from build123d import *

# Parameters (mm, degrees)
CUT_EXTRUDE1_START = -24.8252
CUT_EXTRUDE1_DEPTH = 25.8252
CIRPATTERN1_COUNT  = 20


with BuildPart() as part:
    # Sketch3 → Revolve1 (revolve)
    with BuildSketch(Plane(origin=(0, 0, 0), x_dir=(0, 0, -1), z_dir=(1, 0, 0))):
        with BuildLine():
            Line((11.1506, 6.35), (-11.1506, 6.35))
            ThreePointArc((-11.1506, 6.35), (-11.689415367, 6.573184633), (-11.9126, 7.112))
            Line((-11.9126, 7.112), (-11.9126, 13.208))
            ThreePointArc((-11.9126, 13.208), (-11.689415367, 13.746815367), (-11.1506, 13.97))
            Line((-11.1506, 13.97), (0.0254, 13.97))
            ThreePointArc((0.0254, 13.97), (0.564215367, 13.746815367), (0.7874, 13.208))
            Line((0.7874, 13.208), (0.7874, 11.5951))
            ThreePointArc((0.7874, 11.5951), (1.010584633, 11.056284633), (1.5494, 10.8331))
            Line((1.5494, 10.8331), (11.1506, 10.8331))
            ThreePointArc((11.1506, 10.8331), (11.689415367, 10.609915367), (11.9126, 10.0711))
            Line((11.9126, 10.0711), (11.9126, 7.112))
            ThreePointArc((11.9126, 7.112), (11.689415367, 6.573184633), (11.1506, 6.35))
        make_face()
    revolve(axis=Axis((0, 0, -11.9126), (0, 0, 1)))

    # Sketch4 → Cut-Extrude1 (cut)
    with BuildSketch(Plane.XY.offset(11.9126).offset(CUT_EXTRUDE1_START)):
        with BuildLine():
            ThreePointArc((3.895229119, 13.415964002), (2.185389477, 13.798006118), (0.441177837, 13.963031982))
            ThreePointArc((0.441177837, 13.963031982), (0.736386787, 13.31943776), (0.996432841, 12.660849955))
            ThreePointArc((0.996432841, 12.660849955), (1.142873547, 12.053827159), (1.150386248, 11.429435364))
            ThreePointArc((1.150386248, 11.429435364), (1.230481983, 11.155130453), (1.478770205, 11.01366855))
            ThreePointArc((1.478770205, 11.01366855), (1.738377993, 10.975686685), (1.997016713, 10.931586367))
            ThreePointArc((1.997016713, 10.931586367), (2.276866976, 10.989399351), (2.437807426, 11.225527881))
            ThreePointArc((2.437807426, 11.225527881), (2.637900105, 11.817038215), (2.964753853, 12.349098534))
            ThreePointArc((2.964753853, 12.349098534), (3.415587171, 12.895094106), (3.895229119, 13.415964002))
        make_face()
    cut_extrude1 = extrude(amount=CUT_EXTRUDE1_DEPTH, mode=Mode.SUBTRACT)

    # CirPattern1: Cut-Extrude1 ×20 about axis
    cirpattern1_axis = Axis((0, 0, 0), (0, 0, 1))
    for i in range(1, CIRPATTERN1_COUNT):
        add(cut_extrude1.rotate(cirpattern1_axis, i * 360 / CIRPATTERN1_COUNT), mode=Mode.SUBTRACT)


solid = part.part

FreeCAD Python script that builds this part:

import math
import FreeCAD as App
import Part
import Sketcher
Q = App.Units.Quantity

doc = App.newDocument("Part")
body = doc.addObject("PartDesign::Body", "Body")

# Sketch on YZ plane
sketch1 = body.newObject("Sketcher::SketchObject", "Sketch")
sketch1.AttachmentSupport = (doc.getObject("YZ_Plane"), [""])
sketch1.MapMode = "FlatFace"
sketch1.addGeometry(Part.LineSegment(App.Vector(6.3, 11.2, 0), App.Vector(6.3, -11.2, 0)), False)
sketch1.addGeometry(Part.ArcOfCircle(Part.Circle(App.Vector(7.1, -11.2, 0), App.Vector(0, 0, 1), 0.8), math.radians(-180), math.radians(-90)), False)
sketch1.addGeometry(Part.LineSegment(App.Vector(7.1, -11.9, 0), App.Vector(10.1, -11.9, 0)), False)
sketch1.addGeometry(Part.ArcOfCircle(Part.Circle(App.Vector(10.1, -11.2, 0), App.Vector(0, 0, 1), 0.8), math.radians(-90), math.radians(0)), False)
sketch1.addGeometry(Part.LineSegment(App.Vector(10.8, -11.2, 0), App.Vector(10.8, -1.5, 0)), False)
sketch1.addGeometry(Part.ArcOfCircle(Part.Circle(App.Vector(11.6, -1.5, 0), App.Vector(0, 0, 1), 0.8), math.radians(90), math.radians(180)), False)
sketch1.addGeometry(Part.LineSegment(App.Vector(11.6, -0.8, 0), App.Vector(13.2, -0.8, 0)), False)
sketch1.addGeometry(Part.ArcOfCircle(Part.Circle(App.Vector(13.2, 0, 0), App.Vector(0, 0, 1), 0.8), math.radians(-90), math.radians(0)), False)
sketch1.addGeometry(Part.LineSegment(App.Vector(14, 0, 0), App.Vector(14, 11.2, 0)), False)
sketch1.addGeometry(Part.ArcOfCircle(Part.Circle(App.Vector(13.2, 11.2, 0), App.Vector(0, 0, 1), 0.8), math.radians(0), math.radians(90)), False)
sketch1.addGeometry(Part.LineSegment(App.Vector(13.2, 11.9, 0), App.Vector(7.1, 11.9, 0)), False)
sketch1.addGeometry(Part.ArcOfCircle(Part.Circle(App.Vector(7.1, 11.2, 0), App.Vector(0, 0, 1), 0.8), math.radians(90), math.radians(180)), False)
sketch1.addConstraint(Sketcher.Constraint("Tangent", 0, 2, 1, 1))
sketch1.addConstraint(Sketcher.Constraint("Tangent", 1, 2, 2, 1))
sketch1.addConstraint(Sketcher.Constraint("Tangent", 2, 2, 3, 1))
sketch1.addConstraint(Sketcher.Constraint("Tangent", 3, 2, 4, 1))
sketch1.addConstraint(Sketcher.Constraint("Tangent", 4, 2, 5, 2))
sketch1.addConstraint(Sketcher.Constraint("Tangent", 5, 1, 6, 1))
sketch1.addConstraint(Sketcher.Constraint("Tangent", 6, 2, 7, 1))
sketch1.addConstraint(Sketcher.Constraint("Tangent", 7, 2, 8, 1))
sketch1.addConstraint(Sketcher.Constraint("Tangent", 8, 2, 9, 1))
sketch1.addConstraint(Sketcher.Constraint("Tangent", 9, 2, 10, 1))
sketch1.addConstraint(Sketcher.Constraint("Tangent", 10, 2, 11, 1))
sketch1.addConstraint(Sketcher.Constraint("Tangent", 11, 2, 0, 1))
sketch1.addConstraint(Sketcher.Constraint("Vertical", 0))
sketch1.addConstraint(Sketcher.Constraint("Horizontal", 2))
sketch1.addConstraint(Sketcher.Constraint("Vertical", 4))
sketch1.addConstraint(Sketcher.Constraint("Horizontal", 6))
sketch1.addConstraint(Sketcher.Constraint("Vertical", 8))
sketch1.addConstraint(Sketcher.Constraint("Horizontal", 10))
sketch1.addConstraint(Sketcher.Constraint("Equal", 1, 3))
sketch1.addConstraint(Sketcher.Constraint("Equal", 3, 5))
sketch1.addConstraint(Sketcher.Constraint("Equal", 5, 7))
sketch1.addConstraint(Sketcher.Constraint("Equal", 7, 9))
sketch1.addConstraint(Sketcher.Constraint("Equal", 9, 11))
sketch1.addConstraint(Sketcher.Constraint("Radius", 1, Q("0.03 in")))
sketch1.addConstraint(Sketcher.Constraint("DistanceX", 10, 2, 10, 1, Q("0.24 in")))
sketch1.addConstraint(Sketcher.Constraint("DistanceY", 8, 1, 8, 2, Q("0.44 in")))
sketch1.addConstraint(Sketcher.Constraint("DistanceY", 0, 2, 0, 1, Q("0.878 in")))
sketch1.addConstraint(Sketcher.Constraint("DistanceX", -1, 1, 1, 3, Q("0.28 in")))
sketch1.addConstraint(Sketcher.Constraint("DistanceX", 2, 1, 2, 2, Q("0.1165 in")))
sketch1.addConstraint(Sketcher.Constraint("DistanceY", 1, 3, -1, 1, Q("0.439 in")))
revolution = body.newObject("PartDesign::Revolution", "Revolution")
revolution.Profile = sketch1
revolution.ReferenceAxis = (sketch1, ["V_Axis"])
revolution.Angle = 360

# Sketch on XY plane
sketch2 = body.newObject("Sketcher::SketchObject", "Sketch001")
sketch2.AttachmentSupport = (doc.getObject("XY_Plane"), [""])
sketch2.MapMode = "FlatFace"
sketch2.AttachmentOffset = App.Placement(App.Vector(0, 0, -12.9126), App.Rotation())
sketch2.addGeometry(Part.ArcOfCircle(Part.Circle(App.Vector(0, 0, 0), App.Vector(0, 0, 1), 13.97), math.radians(73.809723), math.radians(88.190277)), False)
sketch2.addGeometry(Part.ArcOfCircle(Part.Circle(App.Vector(-11.32828, 8.175021, 0), App.Vector(0, 0, 1), 13.115685), math.radians(20), math.radians(26.187141)), False)
sketch2.addGeometry(Part.ArcOfCircle(Part.Circle(App.Vector(-1.620577, 11.708336, 0), App.Vector(0, 0, 1), 2.784964), math.radians(-5.747532), math.radians(20)), False)
sketch2.addGeometry(Part.ArcOfCircle(Part.Circle(App.Vector(1.529471, 11.39128, 0), App.Vector(0, 0, 1), 0.381), math.radians(174.252468), math.radians(262.352813)), False)
sketch2.addGeometry(Part.ArcOfCircle(Part.Circle(App.Vector(0, 0.000001, 0), App.Vector(0, 0, 1), 11.112499), math.radians(79.647187), math.radians(82.352813)), False)
sketch2.addGeometry(Part.ArcOfCircle(Part.Circle(App.Vector(2.065486, 11.306384, 0), App.Vector(0, 0, 1), 0.381), math.radians(-100.352813), math.radians(-12.252468)), False)
sketch2.addGeometry(Part.ArcOfCircle(Part.Circle(App.Vector(5.159335, 10.634503, 0), App.Vector(0, 0, 1), 2.784964), math.radians(142), math.radians(167.747532)), False)
sketch2.addGeometry(Part.ArcOfCircle(Part.Circle(App.Vector(13.300055, 4.274276, 0), App.Vector(0, 0, 1), 13.115685), math.radians(135.812859), math.radians(142)), False)
sketch2.addConstraint(Sketcher.Constraint("Coincident", 0, 2, 1, 2))
sketch2.addConstraint(Sketcher.Constraint("Coincident", 1, 1, 2, 2))
sketch2.addConstraint(Sketcher.Constraint("Coincident", 2, 1, 3, 1))
sketch2.addConstraint(Sketcher.Constraint("Coincident", 3, 2, 4, 2))
sketch2.addConstraint(Sketcher.Constraint("Coincident", 4, 1, 5, 1))
sketch2.addConstraint(Sketcher.Constraint("Coincident", 5, 2, 6, 2))
sketch2.addConstraint(Sketcher.Constraint("Coincident", 6, 1, 7, 2))
sketch2.addConstraint(Sketcher.Constraint("Coincident", 7, 1, 0, 1))
sketch2.addConstraint(Sketcher.Constraint("Coincident", 0, 3, -1, 1))
sketch2.addConstraint(Sketcher.Constraint("Coincident", 4, 3, -1, 1))
sketch2.addConstraint(Sketcher.Constraint("Radius", 0, Q("0.55 in")))
sketch2.addConstraint(Sketcher.Constraint("Radius", 3, Q("0.015 in")))
sketch2.addConstraint(Sketcher.Constraint("Radius", 4, Q("0.4375 in")))
sketch2.addConstraint(Sketcher.Constraint("Radius", 5, Q("0.015 in")))
sketch2.addConstraint(Sketcher.Constraint("Radius", 1, Q("13.115685 mm")))
sketch2.addConstraint(Sketcher.Constraint("Radius", 2, Q("2.784964 mm")))
sketch2.addConstraint(Sketcher.Constraint("Radius", 6, Q("2.784964 mm")))
sketch2.addConstraint(Sketcher.Constraint("Radius", 7, Q("13.115685 mm")))
sketch2.addConstraint(Sketcher.Constraint("DistanceX", 4, 1, 6, 1, Q("0.0380999 in")))
sketch2.addConstraint(Sketcher.Constraint("DistanceY", -1, 1, 6, 1, Q("12.349099 mm")))
sketch2.addConstraint(Sketcher.Constraint("DistanceX", 2, 1, 5, 3, Q("0.9151 mm")))
sketch2.addConstraint(Sketcher.Constraint("DistanceY", 2, 1, 2, 3, Q("0.278901 mm")))
sketch2.addConstraint(Sketcher.Constraint("DistanceX", 3, 2, 3, 3, Q("0.050701 mm")))
sketch2.addConstraint(Sketcher.Constraint("DistanceX", 1, 3, -1, 1, Q("11.32828 mm")))
sketch2.addConstraint(Sketcher.Constraint("DistanceY", -1, 1, 1, 3, Q("8.175021 mm")))
sketch2.addConstraint(Sketcher.Constraint("DistanceX", -1, 1, 3, 3, Q("1.529471 mm")))
sketch2.addConstraint(Sketcher.Constraint("DistanceY", -1, 1, 1, 1, Q("12.66085 mm")))
sketch2.addConstraint(Sketcher.Constraint("DistanceX", -1, 1, 7, 1, Q("3.895229 mm")))
sketch2.addConstraint(Sketcher.Constraint("DistanceX", 5, 3, 6, 3, Q("3.09385 mm")))
sketch2.addConstraint(Sketcher.Constraint("DistanceX", 5, 3, 5, 2, Q("0.372322 mm")))
pocket1 = body.newObject("PartDesign::Pocket", "Pocket")
pocket1.Profile = sketch2
pocket1.Length = 25.8252
pocket1.Reversed = True
doc.recompute()

polarpattern = body.newObject("PartDesign::PolarPattern", "PolarPattern")
polarpattern.Originals = [pocket1]
polarpattern.Axis = (doc.getObject("Z_Axis"), [""])
polarpattern.Angle = 360
polarpattern.Occurrences = 20
body.Tip = polarpattern

doc.recompute()
